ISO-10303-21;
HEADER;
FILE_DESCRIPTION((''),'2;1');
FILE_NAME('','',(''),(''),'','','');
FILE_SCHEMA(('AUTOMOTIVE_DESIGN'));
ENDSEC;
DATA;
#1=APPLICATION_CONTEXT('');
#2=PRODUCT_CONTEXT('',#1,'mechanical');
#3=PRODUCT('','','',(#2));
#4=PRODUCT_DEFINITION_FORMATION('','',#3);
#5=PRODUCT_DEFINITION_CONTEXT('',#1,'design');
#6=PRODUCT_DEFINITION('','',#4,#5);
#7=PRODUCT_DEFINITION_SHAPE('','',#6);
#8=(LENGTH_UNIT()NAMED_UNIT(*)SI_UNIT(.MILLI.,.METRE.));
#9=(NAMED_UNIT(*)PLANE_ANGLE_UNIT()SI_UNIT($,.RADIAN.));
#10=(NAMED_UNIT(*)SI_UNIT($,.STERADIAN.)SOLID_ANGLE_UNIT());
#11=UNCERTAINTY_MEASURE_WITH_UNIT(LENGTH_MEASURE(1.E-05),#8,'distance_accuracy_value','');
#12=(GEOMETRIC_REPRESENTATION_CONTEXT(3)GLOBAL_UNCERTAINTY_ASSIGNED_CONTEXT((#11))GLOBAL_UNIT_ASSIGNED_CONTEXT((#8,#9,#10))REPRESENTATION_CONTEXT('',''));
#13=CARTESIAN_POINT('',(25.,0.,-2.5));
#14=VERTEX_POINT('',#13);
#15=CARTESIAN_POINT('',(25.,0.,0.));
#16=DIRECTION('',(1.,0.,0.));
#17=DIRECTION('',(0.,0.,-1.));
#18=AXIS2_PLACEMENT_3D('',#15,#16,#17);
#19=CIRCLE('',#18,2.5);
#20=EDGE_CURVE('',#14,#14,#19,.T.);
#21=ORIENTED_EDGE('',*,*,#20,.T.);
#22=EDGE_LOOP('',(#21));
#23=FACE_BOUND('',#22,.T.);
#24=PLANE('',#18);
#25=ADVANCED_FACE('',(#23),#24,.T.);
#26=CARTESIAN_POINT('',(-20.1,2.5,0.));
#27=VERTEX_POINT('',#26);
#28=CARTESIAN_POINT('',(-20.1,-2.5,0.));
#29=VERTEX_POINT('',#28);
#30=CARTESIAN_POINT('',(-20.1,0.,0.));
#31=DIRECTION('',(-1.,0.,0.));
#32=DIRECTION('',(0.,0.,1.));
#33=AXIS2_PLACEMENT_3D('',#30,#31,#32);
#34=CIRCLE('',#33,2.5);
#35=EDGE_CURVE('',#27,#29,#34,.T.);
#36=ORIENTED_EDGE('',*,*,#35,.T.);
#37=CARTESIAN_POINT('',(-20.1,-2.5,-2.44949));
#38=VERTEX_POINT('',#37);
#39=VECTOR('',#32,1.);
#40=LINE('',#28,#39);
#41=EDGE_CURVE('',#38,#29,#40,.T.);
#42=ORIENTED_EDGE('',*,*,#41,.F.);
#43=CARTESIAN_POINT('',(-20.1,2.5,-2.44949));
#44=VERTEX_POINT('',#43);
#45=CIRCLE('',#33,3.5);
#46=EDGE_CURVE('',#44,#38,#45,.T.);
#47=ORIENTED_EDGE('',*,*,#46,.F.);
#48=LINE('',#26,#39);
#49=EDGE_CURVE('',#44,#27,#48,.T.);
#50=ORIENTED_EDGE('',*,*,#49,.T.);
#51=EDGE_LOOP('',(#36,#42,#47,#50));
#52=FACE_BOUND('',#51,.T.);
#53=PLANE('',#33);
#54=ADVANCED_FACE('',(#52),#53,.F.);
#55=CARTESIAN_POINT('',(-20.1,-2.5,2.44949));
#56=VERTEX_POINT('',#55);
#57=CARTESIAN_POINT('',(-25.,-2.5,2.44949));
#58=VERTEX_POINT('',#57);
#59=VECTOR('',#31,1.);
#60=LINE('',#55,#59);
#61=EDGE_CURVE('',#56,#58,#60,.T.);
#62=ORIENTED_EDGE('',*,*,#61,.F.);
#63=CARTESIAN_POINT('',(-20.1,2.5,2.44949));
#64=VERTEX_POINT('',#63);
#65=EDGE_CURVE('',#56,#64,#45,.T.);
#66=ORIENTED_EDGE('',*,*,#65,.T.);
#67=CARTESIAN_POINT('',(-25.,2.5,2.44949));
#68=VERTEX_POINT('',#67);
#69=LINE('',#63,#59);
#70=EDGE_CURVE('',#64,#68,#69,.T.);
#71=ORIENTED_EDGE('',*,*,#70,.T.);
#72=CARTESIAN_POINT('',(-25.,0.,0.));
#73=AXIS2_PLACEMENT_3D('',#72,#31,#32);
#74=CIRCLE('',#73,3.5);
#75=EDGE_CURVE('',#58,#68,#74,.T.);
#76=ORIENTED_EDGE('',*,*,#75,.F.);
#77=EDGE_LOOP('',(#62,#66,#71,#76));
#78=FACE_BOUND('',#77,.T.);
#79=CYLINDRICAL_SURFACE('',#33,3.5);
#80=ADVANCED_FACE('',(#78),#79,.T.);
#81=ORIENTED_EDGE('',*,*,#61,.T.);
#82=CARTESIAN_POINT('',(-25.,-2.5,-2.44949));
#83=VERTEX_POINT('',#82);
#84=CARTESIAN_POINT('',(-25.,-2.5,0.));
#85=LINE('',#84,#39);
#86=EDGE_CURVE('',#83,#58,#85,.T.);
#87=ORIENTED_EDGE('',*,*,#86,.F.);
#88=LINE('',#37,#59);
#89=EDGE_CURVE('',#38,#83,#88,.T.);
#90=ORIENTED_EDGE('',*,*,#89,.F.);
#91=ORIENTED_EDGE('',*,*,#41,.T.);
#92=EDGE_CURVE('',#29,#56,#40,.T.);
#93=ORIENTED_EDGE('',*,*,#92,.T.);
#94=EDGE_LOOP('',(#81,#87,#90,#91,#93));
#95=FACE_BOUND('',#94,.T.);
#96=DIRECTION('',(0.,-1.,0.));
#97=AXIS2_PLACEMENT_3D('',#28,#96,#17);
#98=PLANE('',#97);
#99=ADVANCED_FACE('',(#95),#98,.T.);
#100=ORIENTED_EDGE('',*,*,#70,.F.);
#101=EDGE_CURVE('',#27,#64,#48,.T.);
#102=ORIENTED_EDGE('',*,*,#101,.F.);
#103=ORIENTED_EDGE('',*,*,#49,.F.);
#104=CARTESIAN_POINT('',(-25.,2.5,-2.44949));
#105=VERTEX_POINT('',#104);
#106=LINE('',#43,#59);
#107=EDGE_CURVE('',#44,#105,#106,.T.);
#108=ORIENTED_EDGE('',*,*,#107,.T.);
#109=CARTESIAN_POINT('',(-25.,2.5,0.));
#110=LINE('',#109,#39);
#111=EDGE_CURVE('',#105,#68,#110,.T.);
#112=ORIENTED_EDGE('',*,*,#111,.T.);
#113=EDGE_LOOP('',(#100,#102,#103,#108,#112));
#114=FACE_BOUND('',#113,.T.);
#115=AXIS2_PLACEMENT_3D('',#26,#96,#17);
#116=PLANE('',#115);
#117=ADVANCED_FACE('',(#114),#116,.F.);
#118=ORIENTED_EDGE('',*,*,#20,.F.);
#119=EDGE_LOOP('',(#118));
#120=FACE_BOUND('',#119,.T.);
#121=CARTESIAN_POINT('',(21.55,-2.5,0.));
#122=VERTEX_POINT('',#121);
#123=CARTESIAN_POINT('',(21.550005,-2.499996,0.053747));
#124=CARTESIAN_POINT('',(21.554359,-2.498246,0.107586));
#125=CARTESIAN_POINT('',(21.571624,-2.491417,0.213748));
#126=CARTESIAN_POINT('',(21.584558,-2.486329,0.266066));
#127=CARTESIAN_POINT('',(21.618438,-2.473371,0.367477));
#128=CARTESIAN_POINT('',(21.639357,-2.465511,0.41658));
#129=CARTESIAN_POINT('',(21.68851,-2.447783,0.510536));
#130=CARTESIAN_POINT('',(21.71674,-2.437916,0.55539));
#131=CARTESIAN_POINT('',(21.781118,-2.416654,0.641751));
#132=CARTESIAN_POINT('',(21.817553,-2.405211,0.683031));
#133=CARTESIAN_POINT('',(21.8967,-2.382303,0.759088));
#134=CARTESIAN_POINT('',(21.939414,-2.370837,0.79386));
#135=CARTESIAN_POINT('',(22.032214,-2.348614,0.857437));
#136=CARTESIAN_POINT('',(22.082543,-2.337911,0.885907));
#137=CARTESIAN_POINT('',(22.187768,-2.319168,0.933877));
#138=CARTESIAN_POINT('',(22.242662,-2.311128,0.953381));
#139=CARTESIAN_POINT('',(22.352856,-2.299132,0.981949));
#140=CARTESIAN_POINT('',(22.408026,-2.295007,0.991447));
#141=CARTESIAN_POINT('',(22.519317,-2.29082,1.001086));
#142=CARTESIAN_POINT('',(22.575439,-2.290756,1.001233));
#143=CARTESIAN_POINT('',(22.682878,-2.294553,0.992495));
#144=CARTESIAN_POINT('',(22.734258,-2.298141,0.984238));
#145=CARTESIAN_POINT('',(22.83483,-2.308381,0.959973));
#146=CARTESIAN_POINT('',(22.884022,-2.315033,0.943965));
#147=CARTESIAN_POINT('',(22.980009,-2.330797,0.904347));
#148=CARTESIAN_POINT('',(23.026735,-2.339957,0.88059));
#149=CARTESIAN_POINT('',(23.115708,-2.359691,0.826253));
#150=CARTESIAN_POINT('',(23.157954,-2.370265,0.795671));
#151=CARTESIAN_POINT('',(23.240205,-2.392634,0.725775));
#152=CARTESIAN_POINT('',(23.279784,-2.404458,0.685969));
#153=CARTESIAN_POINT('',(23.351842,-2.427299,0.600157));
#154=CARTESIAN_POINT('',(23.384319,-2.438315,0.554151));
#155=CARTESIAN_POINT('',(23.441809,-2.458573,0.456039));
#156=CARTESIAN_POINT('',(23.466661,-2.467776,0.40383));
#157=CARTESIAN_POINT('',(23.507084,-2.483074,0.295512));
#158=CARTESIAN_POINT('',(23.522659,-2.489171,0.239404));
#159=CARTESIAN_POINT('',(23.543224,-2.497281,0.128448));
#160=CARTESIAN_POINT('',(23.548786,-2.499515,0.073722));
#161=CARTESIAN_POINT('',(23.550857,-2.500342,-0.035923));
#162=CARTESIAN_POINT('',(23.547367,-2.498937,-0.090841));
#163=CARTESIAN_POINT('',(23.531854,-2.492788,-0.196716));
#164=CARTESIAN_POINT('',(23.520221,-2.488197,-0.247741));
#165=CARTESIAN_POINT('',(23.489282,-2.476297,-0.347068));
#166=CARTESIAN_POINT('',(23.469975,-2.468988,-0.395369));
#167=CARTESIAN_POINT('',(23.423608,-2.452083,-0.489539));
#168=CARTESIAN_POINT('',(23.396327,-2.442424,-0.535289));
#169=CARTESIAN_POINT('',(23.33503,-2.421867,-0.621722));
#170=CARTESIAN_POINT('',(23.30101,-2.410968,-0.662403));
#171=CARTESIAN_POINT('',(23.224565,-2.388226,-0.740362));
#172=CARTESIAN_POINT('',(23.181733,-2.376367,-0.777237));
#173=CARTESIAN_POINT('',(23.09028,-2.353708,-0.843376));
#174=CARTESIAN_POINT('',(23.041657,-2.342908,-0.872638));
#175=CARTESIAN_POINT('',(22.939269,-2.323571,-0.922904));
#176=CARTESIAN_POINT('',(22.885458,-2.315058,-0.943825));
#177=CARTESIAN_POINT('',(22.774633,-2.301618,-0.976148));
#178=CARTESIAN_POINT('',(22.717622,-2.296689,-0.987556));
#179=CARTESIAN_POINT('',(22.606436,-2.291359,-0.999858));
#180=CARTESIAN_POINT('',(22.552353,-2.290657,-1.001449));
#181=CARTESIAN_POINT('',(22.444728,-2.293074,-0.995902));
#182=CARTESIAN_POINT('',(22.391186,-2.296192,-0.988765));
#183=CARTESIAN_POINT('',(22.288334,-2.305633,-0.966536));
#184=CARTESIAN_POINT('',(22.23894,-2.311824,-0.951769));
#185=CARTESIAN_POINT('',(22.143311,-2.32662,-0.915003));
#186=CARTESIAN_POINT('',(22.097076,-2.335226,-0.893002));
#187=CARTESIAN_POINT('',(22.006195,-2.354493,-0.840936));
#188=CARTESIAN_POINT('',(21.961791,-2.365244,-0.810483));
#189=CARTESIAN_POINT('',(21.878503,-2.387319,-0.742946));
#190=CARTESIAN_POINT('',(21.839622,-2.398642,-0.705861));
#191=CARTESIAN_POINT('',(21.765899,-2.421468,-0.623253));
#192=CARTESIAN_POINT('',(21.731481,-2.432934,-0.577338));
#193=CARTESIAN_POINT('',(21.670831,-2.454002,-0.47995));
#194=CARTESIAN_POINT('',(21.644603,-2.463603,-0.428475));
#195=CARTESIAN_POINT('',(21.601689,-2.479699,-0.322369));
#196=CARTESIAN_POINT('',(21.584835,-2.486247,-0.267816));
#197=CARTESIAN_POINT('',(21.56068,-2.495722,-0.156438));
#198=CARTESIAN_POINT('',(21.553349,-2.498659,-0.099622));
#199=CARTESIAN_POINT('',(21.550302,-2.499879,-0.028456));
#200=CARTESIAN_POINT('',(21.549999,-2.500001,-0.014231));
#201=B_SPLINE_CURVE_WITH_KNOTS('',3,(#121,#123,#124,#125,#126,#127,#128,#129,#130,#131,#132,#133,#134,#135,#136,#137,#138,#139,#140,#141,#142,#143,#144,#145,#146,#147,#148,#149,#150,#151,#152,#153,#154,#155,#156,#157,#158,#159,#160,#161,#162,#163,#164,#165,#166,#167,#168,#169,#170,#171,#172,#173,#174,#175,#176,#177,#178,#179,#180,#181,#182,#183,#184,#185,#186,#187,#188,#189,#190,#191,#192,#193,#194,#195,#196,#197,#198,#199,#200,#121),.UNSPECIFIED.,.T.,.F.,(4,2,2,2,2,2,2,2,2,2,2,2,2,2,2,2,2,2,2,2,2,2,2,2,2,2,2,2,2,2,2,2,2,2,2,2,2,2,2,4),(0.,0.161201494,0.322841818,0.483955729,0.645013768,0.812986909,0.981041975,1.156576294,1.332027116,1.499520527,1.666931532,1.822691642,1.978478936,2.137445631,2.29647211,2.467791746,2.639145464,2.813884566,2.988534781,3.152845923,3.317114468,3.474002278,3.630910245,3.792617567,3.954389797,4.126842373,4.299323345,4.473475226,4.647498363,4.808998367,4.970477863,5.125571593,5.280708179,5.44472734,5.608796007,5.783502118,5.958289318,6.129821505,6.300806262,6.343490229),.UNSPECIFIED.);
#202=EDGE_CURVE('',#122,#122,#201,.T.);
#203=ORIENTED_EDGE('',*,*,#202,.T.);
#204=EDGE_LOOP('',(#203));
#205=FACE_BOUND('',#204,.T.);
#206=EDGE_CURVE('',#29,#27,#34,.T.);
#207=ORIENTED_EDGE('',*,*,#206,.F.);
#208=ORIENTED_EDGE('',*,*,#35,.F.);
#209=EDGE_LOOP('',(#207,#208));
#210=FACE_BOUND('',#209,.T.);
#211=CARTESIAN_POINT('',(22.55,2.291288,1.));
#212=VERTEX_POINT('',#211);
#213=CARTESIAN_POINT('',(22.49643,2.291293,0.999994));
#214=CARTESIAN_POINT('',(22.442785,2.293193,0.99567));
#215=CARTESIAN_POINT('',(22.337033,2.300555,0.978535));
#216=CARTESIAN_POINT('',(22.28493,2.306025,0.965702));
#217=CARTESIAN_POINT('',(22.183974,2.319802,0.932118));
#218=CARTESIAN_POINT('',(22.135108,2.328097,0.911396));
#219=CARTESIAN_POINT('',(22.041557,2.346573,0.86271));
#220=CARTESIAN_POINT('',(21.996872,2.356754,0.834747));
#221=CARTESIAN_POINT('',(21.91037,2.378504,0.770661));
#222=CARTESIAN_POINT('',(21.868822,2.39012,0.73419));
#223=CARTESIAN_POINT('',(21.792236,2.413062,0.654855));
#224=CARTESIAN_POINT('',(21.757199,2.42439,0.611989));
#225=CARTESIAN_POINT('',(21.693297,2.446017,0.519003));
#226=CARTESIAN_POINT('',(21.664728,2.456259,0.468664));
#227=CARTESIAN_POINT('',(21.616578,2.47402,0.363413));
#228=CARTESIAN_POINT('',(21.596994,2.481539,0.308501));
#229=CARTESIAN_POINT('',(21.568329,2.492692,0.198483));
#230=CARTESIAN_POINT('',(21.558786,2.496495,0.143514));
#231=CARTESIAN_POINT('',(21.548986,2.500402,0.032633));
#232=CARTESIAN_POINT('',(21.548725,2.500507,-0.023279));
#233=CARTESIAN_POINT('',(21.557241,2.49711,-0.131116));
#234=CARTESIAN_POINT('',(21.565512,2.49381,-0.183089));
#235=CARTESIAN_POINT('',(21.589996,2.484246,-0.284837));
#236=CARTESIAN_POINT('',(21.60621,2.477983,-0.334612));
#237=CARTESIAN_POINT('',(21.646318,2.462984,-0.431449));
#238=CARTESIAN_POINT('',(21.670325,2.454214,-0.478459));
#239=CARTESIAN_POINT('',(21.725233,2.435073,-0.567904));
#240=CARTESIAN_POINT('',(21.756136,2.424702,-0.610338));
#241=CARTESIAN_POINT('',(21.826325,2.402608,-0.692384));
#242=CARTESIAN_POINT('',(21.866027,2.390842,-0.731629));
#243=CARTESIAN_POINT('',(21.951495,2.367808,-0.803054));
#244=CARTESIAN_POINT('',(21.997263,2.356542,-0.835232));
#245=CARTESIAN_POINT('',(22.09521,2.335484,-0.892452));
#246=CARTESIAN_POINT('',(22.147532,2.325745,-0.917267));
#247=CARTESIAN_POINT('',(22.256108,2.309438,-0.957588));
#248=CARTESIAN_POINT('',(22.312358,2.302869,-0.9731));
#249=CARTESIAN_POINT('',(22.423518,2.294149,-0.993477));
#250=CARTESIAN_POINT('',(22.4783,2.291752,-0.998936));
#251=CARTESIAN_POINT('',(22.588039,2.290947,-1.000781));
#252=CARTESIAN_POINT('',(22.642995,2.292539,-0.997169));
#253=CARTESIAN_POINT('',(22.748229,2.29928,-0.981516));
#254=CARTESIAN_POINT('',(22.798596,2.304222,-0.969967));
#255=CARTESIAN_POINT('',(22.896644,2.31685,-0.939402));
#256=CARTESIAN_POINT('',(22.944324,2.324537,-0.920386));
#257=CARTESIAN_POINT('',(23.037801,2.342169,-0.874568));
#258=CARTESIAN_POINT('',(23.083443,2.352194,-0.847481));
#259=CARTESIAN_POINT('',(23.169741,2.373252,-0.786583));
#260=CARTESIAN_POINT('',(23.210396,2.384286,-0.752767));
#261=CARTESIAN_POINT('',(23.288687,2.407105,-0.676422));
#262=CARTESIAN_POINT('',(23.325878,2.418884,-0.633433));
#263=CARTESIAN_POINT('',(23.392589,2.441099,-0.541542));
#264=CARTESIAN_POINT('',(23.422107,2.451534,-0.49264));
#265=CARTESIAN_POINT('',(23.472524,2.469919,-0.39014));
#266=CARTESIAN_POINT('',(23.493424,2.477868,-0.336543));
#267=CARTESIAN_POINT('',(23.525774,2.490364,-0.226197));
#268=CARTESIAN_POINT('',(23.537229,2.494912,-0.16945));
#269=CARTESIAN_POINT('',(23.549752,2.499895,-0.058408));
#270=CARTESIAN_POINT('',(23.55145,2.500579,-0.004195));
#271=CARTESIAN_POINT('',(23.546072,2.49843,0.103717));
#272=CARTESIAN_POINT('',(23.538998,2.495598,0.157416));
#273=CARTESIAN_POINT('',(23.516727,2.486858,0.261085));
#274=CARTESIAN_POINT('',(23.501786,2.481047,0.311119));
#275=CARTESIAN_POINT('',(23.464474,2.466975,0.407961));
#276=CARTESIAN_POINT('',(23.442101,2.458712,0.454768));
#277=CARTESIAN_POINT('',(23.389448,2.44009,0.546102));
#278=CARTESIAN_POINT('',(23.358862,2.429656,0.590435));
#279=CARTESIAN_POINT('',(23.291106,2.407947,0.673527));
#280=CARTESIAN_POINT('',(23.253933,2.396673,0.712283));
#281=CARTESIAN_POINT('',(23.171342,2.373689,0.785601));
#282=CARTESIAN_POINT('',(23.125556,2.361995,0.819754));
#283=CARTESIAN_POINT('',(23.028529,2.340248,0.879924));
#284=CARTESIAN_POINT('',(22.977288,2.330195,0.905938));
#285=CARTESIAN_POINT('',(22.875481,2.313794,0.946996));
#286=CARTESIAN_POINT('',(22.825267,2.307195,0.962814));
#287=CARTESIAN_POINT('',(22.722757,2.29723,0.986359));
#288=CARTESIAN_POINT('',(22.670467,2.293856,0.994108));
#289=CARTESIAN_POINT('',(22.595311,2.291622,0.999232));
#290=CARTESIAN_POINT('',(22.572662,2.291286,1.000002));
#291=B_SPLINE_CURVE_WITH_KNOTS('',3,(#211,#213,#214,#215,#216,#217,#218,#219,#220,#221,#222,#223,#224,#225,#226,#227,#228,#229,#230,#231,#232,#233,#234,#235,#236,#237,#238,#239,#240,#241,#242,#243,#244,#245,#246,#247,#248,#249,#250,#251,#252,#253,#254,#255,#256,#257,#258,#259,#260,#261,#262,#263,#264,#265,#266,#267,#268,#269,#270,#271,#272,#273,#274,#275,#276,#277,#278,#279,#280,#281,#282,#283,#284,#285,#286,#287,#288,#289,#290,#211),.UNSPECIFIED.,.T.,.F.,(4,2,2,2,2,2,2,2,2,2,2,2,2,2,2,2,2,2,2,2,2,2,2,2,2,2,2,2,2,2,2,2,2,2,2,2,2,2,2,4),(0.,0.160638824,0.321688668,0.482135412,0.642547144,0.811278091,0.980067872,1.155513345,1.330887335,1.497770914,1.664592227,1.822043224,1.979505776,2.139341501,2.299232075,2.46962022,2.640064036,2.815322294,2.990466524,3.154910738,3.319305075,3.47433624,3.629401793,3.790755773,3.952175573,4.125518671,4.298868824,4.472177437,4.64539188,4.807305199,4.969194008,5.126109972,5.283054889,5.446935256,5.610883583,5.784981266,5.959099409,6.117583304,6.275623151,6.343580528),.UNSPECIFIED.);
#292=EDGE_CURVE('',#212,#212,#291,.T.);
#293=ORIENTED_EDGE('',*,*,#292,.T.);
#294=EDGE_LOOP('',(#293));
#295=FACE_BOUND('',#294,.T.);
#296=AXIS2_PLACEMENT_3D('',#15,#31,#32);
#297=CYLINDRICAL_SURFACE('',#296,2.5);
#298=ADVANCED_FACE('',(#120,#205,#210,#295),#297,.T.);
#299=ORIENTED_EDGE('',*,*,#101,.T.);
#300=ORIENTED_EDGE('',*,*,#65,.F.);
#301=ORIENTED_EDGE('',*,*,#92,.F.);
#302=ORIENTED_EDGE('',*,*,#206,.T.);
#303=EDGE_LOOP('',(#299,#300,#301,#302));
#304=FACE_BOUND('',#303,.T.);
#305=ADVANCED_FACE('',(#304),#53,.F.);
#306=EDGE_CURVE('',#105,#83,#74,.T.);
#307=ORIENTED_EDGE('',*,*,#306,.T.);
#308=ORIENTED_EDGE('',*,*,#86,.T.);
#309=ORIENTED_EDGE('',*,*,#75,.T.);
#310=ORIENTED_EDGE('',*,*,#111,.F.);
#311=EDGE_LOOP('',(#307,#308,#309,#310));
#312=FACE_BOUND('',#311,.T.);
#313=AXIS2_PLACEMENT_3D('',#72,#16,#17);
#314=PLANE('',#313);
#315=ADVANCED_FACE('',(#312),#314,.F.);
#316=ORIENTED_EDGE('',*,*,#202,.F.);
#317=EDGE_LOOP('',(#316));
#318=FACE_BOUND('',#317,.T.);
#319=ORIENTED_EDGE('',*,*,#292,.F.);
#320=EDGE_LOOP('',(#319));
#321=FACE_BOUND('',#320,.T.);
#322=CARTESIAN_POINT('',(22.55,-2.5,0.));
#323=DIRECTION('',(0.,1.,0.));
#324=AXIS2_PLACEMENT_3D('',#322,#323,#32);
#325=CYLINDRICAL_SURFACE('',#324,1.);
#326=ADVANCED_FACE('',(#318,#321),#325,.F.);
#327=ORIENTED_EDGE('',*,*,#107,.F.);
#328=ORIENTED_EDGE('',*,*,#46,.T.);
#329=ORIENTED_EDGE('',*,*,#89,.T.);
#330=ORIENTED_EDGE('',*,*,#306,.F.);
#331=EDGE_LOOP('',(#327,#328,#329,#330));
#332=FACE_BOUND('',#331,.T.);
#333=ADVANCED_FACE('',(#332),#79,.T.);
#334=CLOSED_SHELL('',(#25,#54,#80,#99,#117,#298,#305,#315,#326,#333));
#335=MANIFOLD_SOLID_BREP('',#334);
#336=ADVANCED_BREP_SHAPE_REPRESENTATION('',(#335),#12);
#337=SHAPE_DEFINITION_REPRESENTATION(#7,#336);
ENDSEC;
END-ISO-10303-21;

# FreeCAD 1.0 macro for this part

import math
import FreeCAD as App
import Part
import Sketcher
from FreeCAD import Vector

doc = App.newDocument("Part")
params = doc.addObject("Spreadsheet::Sheet", "Params")
for row, (alias, value) in enumerate([
    ("sketch1_diameter", "5 mm"),
    ("pad1_length", "50 mm"),
    ("sketch2_radius", "3.5 mm"),
    ("sketch2_radius2", "2.5 mm"),
    ("pad2_length", "4.9 mm"),
    ("sketch3_diameter", "2 mm"),
], start=1):
    params.set(f"A{row}", alias)
    params.set(f"B{row}", "=" + value)
    params.setAlias(f"B{row}", alias)

body = doc.addObject("PartDesign::Body", "Body")

# Sketch on YZ plane
sketch1 = body.newObject("Sketcher::SketchObject", "Sketch")
sketch1.AttachmentSupport = (doc.getObject("YZ_Plane"), [""])
sketch1.MapMode = "FlatFace"
sketch1.addGeometry(Part.Circle(Vector(0, 0, 0), Vector(0, 0, 1), 2.5), False)
sketch1.addConstraint([
    Sketcher.Constraint("Coincident", 0, 3, -1, 1),
    Sketcher.Constraint("Diameter", 0, 5.0),
])
sketch1.setExpression("Constraints[1]", "Params.sketch1_diameter")
pad1 = body.newObject("PartDesign::Pad", "Pad")
pad1.Profile = sketch1
pad1.setExpression("Length", "Params.pad1_length")
pad1.Midplane = True

# Sketch on YZ plane
sketch2 = body.newObject("Sketcher::SketchObject", "Sketch001")
sketch2.AttachmentSupport = (doc.getObject("YZ_Plane"), [""])
sketch2.MapMode = "FlatFace"
sketch2.AttachmentOffset = App.Placement(Vector(0, 0, -20.1), App.Rotation())
sketch2.addGeometry([
    Part.LineSegment(Vector(2.5, 0, 0), Vector(2.5, -2.44949, 0)),  # 0
    Part.ArcOfCircle(Part.Circle(Vector(0, 0, 0), Vector(0, 0, 1), 3.5), math.radians(-135.584691), math.radians(-44.415309)),  # 1
    Part.LineSegment(Vector(-2.5, -2.44949, 0), Vector(-2.5, 0, 0)),  # 2
    Part.ArcOfCircle(Part.Circle(Vector(0, 0, 0), Vector(0, 0, 1), 2.5), math.radians(180), math.radians(360)),  # 3
    Part.LineSegment(Vector(2.5, 2.44949, 0), Vector(2.5, 0, 0)),  # 4
    Part.ArcOfCircle(Part.Circle(Vector(0, 0, 0), Vector(0, 0, 1), 2.5), math.radians(0), math.radians(90)),  # 5
    Part.ArcOfCircle(Part.Circle(Vector(0, 0, 0), Vector(0, 0, 1), 2.5), math.radians(90), math.radians(180)),  # 6
    Part.LineSegment(Vector(-2.5, 0, 0), Vector(-2.5, 2.44949, 0)),  # 7
    Part.ArcOfCircle(Part.Circle(Vector(0, 0, 0), Vector(0, 0, 1), 3.5), math.radians(90), math.radians(135.584691)),  # 8
    Part.ArcOfCircle(Part.Circle(Vector(0, 0, 0), Vector(0, 0, 1), 3.5), math.radians(44.415309), math.radians(90)),  # 9
], False)
sketch2.addConstraint([
    Sketcher.Constraint("Coincident", 0, 2, 1, 2),
    Sketcher.Constraint("Coincident", 1, 1, 2, 1),
    Sketcher.Constraint("Tangent", 2, 2, 3, 1),
    Sketcher.Constraint("Tangent", 3, 2, 0, 1),
    Sketcher.Constraint("Tangent", 4, 2, 5, 1),
    Sketcher.Constraint("Tangent", 5, 2, 6, 1),
    Sketcher.Constraint("Tangent", 6, 2, 7, 1),
    Sketcher.Constraint("Coincident", 7, 2, 8, 2),
    Sketcher.Constraint("Tangent", 8, 1, 9, 2),
    Sketcher.Constraint("Coincident", 9, 1, 4, 1),
    Sketcher.Constraint("Vertical", 0),
    Sketcher.Constraint("Vertical", 2),
    Sketcher.Constraint("Vertical", 4),
    Sketcher.Constraint("Vertical", 7),
    Sketcher.Constraint("Coincident", 1, 3, -1, 1),
    Sketcher.Constraint("Coincident", 3, 3, -1, 1),
    Sketcher.Constraint("Coincident", 5, 3, -1, 1),
    Sketcher.Constraint("Coincident", 8, 3, -1, 1),
    Sketcher.Constraint("Coincident", 6, 2, 2, 2),
    Sketcher.Constraint("Equal", 1, 8),
    Sketcher.Constraint("Equal", 8, 9),
    Sketcher.Constraint("PointOnObject", 5, 2, -2),
    Sketcher.Constraint("PointOnObject", 8, 1, -2),
    Sketcher.Constraint("Radius", 1, 3.5),
    Sketcher.Constraint("Radius", 3, 2.5),
])
sketch2.setExpression("Constraints[23]", "Params.sketch2_radius")
sketch2.setExpression("Constraints[24]", "Params.sketch2_radius2")
pad2 = body.newObject("PartDesign::Pad", "Pad001")
pad2.Profile = sketch2
pad2.setExpression("Length", "Params.pad2_length")
pad2.Reversed = True

# Sketch on XZ plane
sketch3 = body.newObject("Sketcher::SketchObject", "Sketch002")
sketch3.AttachmentSupport = (doc.getObject("XZ_Plane"), [""])
sketch3.MapMode = "FlatFace"
sketch3.AttachmentOffset = App.Placement(Vector(0, 0, -2.5), App.Rotation())
sketch3.addGeometry(Part.Circle(Vector(22.55, 0, 0), Vector(0, 0, 1), 1), False)
sketch3.addConstraint([
    Sketcher.Constraint("PointOnObject", 0, 3, -1),
    Sketcher.Constraint("Diameter", 0, 2.0),
    Sketcher.Constraint("DistanceX", -1, 1, 0, 3, 22.55),
])
sketch3.setExpression("Constraints[1]", "Params.sketch3_diameter")
pocket1 = body.newObject("PartDesign::Pocket", "Pocket")
pocket1.Profile = sketch3
pocket1.Type = "ThroughAll"
pocket1.Midplane = True

doc.recompute()
